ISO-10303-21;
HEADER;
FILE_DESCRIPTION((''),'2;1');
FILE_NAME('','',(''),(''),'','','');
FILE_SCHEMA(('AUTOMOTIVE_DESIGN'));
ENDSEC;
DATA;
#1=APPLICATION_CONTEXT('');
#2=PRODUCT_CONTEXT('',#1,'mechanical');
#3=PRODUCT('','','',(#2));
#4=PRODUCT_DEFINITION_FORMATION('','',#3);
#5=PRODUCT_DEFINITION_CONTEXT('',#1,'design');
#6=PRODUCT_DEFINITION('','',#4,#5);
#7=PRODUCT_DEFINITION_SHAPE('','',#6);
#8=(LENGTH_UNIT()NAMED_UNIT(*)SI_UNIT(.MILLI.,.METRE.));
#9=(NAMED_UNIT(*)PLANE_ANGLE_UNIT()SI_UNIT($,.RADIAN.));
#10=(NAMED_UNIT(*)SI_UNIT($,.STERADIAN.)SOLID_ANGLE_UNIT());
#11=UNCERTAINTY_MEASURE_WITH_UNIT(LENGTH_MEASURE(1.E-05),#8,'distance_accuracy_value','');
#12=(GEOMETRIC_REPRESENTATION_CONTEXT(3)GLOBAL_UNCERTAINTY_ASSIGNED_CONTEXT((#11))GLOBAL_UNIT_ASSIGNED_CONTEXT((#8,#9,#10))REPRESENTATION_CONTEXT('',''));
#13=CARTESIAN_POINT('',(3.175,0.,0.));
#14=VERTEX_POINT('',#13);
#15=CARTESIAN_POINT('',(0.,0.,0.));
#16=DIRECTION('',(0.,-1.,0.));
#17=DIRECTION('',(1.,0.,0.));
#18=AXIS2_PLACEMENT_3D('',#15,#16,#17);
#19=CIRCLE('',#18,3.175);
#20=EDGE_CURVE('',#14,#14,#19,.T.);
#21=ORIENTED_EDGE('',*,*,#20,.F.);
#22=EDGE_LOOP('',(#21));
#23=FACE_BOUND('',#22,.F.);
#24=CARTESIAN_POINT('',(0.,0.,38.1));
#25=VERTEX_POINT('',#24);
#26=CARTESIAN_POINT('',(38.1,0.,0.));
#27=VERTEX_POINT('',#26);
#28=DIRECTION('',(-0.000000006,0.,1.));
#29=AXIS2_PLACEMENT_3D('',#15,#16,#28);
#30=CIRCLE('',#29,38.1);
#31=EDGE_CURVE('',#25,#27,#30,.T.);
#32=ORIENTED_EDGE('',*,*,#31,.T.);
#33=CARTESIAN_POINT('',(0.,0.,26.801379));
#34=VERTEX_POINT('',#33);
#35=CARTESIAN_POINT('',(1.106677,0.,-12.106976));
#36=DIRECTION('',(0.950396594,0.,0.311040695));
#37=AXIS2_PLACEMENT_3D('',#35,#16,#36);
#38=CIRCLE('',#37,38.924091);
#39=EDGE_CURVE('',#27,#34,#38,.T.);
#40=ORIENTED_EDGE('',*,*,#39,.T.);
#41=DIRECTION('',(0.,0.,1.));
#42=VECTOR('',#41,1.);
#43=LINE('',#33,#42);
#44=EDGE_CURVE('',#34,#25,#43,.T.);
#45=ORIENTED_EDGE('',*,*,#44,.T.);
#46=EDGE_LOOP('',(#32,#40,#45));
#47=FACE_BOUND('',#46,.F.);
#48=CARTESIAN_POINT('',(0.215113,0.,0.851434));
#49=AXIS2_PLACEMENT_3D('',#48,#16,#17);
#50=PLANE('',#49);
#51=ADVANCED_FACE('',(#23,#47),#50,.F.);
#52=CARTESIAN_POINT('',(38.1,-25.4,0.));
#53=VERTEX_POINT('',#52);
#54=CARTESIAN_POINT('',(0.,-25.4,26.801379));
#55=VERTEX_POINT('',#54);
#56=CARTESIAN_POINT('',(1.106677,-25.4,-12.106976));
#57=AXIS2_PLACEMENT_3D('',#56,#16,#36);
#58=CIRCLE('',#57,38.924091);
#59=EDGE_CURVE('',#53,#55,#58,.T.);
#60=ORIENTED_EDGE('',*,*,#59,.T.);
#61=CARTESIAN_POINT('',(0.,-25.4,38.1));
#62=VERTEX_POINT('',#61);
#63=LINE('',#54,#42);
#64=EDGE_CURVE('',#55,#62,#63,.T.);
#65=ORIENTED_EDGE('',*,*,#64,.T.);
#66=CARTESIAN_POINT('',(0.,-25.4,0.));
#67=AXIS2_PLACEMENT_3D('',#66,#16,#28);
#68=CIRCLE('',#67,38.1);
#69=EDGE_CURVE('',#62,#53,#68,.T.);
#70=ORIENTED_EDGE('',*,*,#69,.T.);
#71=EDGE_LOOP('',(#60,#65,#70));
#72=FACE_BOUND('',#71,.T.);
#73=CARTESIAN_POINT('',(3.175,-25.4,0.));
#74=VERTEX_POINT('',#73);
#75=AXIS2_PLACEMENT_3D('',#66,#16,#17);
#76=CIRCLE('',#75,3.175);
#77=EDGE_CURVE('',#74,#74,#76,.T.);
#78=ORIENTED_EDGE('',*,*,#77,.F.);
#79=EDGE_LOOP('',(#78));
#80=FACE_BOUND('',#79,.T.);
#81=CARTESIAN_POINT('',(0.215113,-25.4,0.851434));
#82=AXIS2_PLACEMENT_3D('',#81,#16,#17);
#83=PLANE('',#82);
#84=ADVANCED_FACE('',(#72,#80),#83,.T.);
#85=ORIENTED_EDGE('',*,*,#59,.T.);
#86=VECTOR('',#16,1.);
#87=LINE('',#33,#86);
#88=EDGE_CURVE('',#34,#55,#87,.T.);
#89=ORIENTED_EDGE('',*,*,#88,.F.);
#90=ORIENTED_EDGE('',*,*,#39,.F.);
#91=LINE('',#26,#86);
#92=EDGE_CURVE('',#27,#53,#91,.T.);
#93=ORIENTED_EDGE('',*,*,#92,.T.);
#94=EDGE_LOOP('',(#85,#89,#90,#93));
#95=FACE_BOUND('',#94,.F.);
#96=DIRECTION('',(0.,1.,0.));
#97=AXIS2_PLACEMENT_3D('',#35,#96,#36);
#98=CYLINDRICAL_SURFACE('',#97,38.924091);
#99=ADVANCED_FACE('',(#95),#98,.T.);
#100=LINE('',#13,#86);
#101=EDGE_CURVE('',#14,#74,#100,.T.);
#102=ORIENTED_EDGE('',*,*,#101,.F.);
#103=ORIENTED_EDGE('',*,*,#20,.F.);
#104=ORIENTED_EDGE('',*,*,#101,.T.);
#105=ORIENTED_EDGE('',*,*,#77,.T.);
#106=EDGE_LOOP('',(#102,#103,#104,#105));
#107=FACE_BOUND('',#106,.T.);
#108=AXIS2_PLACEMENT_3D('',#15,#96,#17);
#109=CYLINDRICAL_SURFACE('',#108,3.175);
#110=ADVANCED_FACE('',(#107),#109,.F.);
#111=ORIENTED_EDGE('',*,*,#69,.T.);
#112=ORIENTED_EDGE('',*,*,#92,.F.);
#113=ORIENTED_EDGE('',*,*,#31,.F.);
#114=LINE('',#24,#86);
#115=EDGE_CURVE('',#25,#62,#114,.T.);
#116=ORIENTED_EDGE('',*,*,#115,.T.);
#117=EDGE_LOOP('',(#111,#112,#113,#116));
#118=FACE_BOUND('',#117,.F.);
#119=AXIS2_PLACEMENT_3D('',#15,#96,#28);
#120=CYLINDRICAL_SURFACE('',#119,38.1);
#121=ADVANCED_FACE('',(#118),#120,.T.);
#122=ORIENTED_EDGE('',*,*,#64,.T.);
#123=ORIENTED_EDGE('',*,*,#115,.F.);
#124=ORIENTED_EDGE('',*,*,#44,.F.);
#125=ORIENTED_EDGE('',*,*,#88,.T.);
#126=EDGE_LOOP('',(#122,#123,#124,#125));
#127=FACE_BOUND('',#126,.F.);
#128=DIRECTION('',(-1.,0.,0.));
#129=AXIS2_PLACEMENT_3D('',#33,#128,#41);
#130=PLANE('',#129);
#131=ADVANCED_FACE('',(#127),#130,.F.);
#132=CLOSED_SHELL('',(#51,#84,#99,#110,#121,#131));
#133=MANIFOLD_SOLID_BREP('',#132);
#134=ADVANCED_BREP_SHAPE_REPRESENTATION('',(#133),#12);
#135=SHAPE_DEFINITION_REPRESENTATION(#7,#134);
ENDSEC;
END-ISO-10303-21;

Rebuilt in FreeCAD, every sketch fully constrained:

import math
import FreeCAD as App
import Part
import Sketcher
Q = App.Units.Quantity

doc = App.newDocument("Part")
params = doc.addObject("Spreadsheet::Sheet", "Params")
for row, (alias, value) in enumerate([
    ("sketch1_radius", "1.5 in"),
    ("sketch1_diameter", "0.25 in"),
    ("pad1_length", "1 in"),
], start=1):
    params.set(f"A{row}", alias)
    params.set(f"B{row}", "=" + value)
    params.setAlias(f"B{row}", alias)

body = doc.addObject("PartDesign::Body", "Body")

# Sketch on XZ plane
sketch1 = body.newObject("Sketcher::SketchObject", "Sketch")
sketch1.AttachmentSupport = (doc.getObject("XZ_Plane"), [""])
sketch1.MapMode = "FlatFace"
sketch1.addGeometry(Part.LineSegment(App.Vector(0, 26.8, 0), App.Vector(0, 38.1, 0)), False)
sketch1.addGeometry(Part.ArcOfCircle(Part.Circle(App.Vector(0, 0, 0), App.Vector(0, 0, 1), 38.1), math.radians(90), math.radians(360)), False)
sketch1.addGeometry(Part.ArcOfCircle(Part.Circle(App.Vector(1.1, -12.1, 0), App.Vector(0, 0, 1), 38.9), math.radians(18), math.radians(92)), False)
sketch1.addGeometry(Part.Circle(App.Vector(0, 0, 0), App.Vector(0, 0, 1), 3.2), False)
sketch1.addConstraint(Sketcher.Constraint("Coincident", 0, 2, 1, 1))
sketch1.addConstraint(Sketcher.Constraint("Coincident", 1, 2, 2, 1))
sketch1.addConstraint(Sketcher.Constraint("Coincident", 2, 2, 0, 1))
sketch1.addConstraint(Sketcher.Constraint("Vertical", 0))
sketch1.addConstraint(Sketcher.Constraint("Coincident", 1, 3, -1, 1))
sketch1.addConstraint(Sketcher.Constraint("Coincident", 3, 3, -1, 1))
sketch1.addConstraint(Sketcher.Constraint("PointOnObject", 0, 2, -2))
sketch1.addConstraint(Sketcher.Constraint("PointOnObject", 1, 2, -1))
sketch1.addConstraint(Sketcher.Constraint("Radius", 1, Q("1.5 in")))
sketch1.addConstraint(Sketcher.Constraint("Diameter", 3, Q("0.25 in")))
sketch1.addConstraint(Sketcher.Constraint("Radius", 2, Q("38.924091 mm")))
sketch1.addConstraint(Sketcher.Constraint("DistanceY", 0, 1, 0, 2, Q("11.298621 mm")))
sketch1.setExpression("Constraints[8]", "Params.sketch1_radius")
sketch1.setExpression("Constraints[9]", "Params.sketch1_diameter")
pad1 = body.newObject("PartDesign::Pad", "Pad")
pad1.Profile = sketch1
pad1.setExpression("Length", "Params.pad1_length")

doc.recompute()
